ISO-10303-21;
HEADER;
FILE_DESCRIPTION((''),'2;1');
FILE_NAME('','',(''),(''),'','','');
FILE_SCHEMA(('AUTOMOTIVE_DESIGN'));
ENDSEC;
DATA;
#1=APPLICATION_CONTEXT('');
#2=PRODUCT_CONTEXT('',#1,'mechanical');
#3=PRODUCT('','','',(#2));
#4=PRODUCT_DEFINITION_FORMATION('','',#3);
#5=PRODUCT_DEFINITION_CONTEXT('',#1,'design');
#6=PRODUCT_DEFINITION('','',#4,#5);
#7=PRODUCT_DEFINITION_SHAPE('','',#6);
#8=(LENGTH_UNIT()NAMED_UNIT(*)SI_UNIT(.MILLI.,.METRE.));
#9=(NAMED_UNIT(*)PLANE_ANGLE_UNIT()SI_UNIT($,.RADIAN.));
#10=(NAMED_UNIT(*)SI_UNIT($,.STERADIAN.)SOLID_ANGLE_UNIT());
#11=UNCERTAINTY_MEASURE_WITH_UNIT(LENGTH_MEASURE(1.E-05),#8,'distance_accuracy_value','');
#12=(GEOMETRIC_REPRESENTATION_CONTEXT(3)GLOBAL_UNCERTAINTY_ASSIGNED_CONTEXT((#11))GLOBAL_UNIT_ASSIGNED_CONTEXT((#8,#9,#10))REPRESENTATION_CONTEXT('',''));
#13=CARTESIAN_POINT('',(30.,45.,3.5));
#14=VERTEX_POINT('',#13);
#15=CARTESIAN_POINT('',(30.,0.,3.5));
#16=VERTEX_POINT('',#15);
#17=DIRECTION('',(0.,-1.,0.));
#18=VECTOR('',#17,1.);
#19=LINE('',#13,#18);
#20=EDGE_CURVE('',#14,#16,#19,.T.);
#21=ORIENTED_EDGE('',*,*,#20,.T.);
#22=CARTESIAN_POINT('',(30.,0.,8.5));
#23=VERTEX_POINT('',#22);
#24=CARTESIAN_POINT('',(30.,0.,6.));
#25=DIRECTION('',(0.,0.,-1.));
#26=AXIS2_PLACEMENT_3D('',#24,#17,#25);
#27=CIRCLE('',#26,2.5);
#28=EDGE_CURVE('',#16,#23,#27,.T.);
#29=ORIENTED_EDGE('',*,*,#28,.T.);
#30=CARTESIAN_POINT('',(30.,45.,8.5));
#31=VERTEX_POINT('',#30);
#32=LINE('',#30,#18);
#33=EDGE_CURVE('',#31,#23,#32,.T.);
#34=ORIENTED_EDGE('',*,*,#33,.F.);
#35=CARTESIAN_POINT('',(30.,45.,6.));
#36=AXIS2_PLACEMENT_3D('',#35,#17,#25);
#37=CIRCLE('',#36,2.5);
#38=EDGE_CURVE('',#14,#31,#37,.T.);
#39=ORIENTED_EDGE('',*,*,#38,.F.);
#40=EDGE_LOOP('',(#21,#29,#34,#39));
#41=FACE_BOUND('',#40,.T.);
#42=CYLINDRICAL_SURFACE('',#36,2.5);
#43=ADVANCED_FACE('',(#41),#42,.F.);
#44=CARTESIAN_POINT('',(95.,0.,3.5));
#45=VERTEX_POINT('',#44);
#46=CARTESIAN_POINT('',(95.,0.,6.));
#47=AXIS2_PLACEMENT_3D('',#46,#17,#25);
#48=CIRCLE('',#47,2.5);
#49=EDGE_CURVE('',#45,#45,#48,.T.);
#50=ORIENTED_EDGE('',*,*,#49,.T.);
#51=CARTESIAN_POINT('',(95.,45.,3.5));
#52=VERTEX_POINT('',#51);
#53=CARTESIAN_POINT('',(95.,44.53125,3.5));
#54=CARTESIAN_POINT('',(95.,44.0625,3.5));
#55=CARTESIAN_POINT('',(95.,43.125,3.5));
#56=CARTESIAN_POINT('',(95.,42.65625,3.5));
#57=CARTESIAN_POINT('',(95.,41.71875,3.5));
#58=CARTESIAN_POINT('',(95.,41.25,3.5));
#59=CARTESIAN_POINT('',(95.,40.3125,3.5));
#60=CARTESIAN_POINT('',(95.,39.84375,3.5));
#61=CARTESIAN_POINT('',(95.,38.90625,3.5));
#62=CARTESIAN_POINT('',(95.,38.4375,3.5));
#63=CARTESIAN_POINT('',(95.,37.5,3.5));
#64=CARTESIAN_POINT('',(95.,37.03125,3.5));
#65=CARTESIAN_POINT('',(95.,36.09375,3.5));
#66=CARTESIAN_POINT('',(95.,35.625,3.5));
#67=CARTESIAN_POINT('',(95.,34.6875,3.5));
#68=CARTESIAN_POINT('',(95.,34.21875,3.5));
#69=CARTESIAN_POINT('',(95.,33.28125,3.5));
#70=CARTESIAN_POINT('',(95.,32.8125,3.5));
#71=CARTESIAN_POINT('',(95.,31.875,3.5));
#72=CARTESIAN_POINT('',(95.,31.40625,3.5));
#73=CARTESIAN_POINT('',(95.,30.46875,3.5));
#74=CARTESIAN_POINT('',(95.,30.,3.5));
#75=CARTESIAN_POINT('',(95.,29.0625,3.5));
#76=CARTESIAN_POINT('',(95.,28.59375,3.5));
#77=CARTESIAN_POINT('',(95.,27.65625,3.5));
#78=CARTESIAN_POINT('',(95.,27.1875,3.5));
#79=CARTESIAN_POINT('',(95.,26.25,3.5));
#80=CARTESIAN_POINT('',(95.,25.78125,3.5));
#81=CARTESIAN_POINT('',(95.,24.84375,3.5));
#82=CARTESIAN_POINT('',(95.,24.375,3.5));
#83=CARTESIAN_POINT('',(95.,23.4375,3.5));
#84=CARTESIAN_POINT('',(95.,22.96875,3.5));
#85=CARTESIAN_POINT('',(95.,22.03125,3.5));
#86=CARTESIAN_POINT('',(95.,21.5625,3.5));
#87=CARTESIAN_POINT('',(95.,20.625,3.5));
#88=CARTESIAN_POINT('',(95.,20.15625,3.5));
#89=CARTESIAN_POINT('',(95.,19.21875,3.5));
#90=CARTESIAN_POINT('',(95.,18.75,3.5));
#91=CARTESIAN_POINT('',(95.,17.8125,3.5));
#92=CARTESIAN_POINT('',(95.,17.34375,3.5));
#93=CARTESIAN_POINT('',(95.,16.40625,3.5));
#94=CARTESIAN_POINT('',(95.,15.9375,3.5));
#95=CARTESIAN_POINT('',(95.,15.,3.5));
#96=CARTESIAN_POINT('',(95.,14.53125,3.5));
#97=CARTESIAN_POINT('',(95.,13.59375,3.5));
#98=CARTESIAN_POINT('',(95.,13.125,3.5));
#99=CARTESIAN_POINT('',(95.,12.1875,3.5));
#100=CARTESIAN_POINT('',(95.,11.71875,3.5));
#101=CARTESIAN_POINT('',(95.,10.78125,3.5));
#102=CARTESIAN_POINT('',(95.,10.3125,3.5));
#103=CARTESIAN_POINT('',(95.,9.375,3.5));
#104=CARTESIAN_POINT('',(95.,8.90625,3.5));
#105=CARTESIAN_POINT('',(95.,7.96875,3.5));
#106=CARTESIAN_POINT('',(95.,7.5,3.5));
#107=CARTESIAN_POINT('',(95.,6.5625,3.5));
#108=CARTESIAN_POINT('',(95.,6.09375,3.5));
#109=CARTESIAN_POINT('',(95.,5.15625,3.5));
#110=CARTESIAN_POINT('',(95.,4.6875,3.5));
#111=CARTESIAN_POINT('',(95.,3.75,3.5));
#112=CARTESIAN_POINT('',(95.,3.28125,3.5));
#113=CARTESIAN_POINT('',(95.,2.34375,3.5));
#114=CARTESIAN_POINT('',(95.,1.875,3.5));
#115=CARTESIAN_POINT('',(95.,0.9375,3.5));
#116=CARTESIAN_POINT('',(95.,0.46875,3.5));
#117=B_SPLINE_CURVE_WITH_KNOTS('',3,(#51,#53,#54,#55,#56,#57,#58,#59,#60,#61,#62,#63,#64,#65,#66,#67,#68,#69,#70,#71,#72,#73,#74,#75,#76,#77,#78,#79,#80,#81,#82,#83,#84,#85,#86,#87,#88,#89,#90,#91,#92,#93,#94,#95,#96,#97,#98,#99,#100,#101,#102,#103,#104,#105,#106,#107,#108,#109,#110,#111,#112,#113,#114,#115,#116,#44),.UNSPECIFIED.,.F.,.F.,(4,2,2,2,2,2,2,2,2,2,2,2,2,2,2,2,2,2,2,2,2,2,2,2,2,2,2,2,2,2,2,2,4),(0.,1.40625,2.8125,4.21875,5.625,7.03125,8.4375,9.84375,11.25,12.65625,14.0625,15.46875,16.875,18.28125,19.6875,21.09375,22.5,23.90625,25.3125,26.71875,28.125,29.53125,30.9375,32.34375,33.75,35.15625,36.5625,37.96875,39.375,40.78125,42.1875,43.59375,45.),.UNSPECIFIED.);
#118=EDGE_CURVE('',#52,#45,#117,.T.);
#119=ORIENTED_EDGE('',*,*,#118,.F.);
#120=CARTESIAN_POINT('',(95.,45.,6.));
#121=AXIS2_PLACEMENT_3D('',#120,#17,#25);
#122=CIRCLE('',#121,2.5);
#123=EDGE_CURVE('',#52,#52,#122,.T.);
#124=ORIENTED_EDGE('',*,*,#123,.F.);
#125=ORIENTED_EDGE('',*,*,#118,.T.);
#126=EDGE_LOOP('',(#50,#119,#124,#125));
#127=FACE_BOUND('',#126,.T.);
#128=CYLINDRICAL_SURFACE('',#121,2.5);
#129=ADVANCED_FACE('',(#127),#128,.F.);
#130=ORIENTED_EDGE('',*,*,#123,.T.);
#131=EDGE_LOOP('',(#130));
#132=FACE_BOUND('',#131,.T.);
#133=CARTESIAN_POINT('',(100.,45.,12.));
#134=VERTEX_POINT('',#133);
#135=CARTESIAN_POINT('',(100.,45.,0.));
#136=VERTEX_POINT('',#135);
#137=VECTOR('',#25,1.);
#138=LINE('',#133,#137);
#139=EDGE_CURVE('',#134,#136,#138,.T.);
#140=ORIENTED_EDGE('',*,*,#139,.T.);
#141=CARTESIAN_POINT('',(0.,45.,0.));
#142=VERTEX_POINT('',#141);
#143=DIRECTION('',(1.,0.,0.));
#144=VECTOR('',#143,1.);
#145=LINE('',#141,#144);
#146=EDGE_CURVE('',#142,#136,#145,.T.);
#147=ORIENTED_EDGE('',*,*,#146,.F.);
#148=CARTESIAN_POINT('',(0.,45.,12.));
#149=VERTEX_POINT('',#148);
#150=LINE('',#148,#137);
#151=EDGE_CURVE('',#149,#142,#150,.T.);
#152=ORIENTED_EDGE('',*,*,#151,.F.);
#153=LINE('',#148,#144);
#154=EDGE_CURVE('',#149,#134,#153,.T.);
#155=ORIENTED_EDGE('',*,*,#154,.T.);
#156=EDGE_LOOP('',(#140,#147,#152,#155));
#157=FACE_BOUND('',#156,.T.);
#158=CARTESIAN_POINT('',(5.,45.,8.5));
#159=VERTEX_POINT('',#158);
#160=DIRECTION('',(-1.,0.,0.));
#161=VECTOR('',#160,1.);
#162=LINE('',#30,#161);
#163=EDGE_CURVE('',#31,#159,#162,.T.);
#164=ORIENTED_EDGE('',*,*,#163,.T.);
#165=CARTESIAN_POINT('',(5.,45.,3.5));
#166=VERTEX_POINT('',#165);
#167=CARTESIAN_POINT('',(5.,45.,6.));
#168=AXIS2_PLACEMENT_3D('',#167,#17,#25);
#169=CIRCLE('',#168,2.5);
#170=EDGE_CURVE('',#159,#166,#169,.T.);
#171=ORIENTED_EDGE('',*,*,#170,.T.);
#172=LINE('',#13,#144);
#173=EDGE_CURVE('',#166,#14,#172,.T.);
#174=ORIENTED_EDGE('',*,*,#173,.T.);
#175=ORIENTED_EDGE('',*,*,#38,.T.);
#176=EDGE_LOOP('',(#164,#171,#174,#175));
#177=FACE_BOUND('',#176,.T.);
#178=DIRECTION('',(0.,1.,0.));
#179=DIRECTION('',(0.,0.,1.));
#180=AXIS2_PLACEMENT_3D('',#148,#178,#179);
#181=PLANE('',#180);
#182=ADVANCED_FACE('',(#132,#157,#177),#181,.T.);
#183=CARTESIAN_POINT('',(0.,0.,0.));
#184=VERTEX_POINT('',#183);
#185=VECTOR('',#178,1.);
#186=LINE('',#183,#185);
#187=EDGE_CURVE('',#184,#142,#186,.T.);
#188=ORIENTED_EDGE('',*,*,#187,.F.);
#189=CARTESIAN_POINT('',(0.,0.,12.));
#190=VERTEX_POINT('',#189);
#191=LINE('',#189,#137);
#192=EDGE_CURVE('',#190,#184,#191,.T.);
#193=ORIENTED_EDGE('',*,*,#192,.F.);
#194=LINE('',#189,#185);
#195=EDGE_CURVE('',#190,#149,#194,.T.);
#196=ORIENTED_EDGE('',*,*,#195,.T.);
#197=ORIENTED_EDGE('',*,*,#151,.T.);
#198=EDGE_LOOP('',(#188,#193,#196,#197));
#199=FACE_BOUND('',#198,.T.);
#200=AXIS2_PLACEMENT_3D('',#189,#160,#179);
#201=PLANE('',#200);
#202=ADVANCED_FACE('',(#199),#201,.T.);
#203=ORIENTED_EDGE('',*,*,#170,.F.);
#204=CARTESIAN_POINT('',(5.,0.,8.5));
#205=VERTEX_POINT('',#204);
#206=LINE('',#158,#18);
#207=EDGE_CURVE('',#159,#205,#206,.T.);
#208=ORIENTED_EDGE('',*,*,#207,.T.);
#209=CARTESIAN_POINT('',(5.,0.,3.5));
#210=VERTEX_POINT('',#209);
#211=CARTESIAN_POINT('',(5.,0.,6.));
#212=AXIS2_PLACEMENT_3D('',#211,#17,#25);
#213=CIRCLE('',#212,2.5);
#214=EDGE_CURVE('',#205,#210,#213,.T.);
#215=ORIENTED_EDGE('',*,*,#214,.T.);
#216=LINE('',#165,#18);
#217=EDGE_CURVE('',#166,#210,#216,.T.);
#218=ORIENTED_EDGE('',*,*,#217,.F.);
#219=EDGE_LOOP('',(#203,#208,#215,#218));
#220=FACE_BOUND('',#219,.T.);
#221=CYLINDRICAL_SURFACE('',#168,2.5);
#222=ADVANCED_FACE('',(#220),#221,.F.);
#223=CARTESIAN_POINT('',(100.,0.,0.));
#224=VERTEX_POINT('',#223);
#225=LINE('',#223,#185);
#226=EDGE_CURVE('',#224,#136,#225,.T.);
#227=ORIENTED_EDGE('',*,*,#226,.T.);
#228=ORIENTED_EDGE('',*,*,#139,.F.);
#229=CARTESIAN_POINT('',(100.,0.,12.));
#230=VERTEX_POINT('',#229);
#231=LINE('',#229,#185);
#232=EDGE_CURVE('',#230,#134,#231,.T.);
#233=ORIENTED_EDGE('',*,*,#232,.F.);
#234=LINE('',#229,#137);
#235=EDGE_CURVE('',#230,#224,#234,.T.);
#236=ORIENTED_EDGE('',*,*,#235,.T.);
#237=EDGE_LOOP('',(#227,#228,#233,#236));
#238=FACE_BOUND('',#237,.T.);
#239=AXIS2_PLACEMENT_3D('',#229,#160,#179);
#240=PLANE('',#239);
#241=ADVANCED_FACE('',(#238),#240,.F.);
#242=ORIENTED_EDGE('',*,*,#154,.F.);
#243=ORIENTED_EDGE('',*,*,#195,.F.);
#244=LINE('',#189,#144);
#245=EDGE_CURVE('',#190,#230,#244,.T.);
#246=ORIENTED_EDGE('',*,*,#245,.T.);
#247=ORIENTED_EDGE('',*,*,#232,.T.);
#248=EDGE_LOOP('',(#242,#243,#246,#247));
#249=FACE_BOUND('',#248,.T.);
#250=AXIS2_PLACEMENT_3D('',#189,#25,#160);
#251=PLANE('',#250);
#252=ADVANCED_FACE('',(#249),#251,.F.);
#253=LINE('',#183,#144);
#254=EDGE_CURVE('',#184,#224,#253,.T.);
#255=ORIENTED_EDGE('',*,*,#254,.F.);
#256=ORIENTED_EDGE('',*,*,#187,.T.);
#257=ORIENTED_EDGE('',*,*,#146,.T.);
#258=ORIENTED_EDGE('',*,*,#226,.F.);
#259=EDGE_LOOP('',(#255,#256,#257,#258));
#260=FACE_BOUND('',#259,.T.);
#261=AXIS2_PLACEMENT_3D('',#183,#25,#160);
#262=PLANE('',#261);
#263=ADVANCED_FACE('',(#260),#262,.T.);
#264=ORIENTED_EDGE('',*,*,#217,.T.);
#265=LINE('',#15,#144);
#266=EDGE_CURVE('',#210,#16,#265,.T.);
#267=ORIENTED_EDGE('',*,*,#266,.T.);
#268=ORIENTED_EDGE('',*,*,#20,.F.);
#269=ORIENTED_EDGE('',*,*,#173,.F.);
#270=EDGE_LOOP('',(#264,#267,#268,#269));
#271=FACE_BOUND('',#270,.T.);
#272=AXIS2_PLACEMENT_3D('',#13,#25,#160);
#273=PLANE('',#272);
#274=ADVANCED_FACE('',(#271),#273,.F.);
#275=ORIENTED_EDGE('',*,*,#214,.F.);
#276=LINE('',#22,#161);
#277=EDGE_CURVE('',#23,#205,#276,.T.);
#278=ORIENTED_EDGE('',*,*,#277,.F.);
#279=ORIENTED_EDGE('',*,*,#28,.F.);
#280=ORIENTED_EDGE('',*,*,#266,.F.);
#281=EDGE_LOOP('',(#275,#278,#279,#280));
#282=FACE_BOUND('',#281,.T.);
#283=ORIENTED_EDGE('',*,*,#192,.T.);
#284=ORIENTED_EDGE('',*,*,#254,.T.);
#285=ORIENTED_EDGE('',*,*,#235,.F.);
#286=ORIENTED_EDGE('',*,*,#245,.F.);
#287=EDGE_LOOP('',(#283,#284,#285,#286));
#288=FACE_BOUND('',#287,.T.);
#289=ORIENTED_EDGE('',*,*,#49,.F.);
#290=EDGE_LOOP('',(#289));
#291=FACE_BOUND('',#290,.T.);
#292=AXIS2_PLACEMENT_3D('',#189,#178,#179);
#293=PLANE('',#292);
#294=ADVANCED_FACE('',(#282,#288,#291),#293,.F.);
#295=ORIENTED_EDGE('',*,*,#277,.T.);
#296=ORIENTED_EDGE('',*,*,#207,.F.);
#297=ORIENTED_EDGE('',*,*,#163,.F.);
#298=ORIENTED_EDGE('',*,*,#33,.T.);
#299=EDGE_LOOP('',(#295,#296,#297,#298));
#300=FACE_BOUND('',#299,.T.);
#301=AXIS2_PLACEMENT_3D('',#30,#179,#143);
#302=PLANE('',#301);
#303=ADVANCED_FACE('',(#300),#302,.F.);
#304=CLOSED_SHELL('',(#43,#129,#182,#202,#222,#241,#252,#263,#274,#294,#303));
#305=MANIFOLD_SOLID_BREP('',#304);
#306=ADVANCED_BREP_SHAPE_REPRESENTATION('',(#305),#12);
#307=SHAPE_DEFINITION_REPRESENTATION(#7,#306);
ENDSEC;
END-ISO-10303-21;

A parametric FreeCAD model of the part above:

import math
import FreeCAD as App
import Part
import Sketcher
Q = App.Units.Quantity


def add_polygon(sketch, points):
    """Adds a closed chain of lines whose ends are joined by coincident constraints."""
    first, n = sketch.GeometryCount, len(points)
    for a, b in zip(points, points[1:] + points[:1]):
        sketch.addGeometry(Part.LineSegment(App.Vector(*a, 0), App.Vector(*b, 0)), False)
    for i in range(n):
        sketch.addConstraint(Sketcher.Constraint("Coincident", first + i, 2, first + (i + 1) % n, 1))

doc = App.newDocument("Part")
params = doc.addObject("Spreadsheet::Sheet", "Params")
for row, (alias, value) in enumerate([
    ("sketch1_width", "100 mm"),
    ("sketch1_height", "45 mm"),
    ("pad1_length", "12 mm"),
    ("sketch2_diameter", "5 mm"),
    ("sketch2_width", "25 mm"),
], start=1):
    params.set(f"A{row}", alias)
    params.set(f"B{row}", "=" + value)
    params.setAlias(f"B{row}", alias)

body = doc.addObject("PartDesign::Body", "Body")

# Sketch on XY plane
sketch1 = body.newObject("Sketcher::SketchObject", "Sketch")
sketch1.AttachmentSupport = (doc.getObject("XY_Plane"), [""])
sketch1.MapMode = "FlatFace"
add_polygon(sketch1, [(0, 45), (0, 0), (100, 0), (100, 45)])  # lines 0-3
sketch1.addConstraint([
    Sketcher.Constraint("Vertical", 0),
    Sketcher.Constraint("Horizontal", 1),
    Sketcher.Constraint("Vertical", 2),
    Sketcher.Constraint("Horizontal", 3),
    Sketcher.Constraint("Coincident", 0, 2, -1, 1),
    Sketcher.Constraint("DistanceX", 1, 1, 1, 2, Q("100 mm")),
    Sketcher.Constraint("DistanceY", 0, 2, 0, 1, Q("45 mm")),
])
sketch1.setExpression("Constraints[9]", "Params.sketch1_width")
sketch1.setExpression("Constraints[10]", "Params.sketch1_height")
pad1 = body.newObject("PartDesign::Pad", "Pad")
pad1.Profile = sketch1
pad1.setExpression("Length", "Params.pad1_length")

# Sketch on XZ plane
sketch2 = body.newObject("Sketcher::SketchObject", "Sketch001")
sketch2.AttachmentSupport = (doc.getObject("XZ_Plane"), [""])
sketch2.MapMode = "FlatFace"
sketch2.addGeometry([
    Part.Circle(App.Vector(95, 6, 0), App.Vector(0, 0, 1), 2.5),  # 0
    Part.LineSegment(App.Vector(5, 3.5, 0), App.Vector(30, 3.5, 0)),  # 1
    Part.ArcOfCircle(Part.Circle(App.Vector(30, 6, 0), App.Vector(0, 0, 1), 2.5), math.radians(-90), math.radians(90)),  # 2
    Part.LineSegment(App.Vector(30, 8.5, 0), App.Vector(5, 8.5, 0)),  # 3
    Part.ArcOfCircle(Part.Circle(App.Vector(5, 6, 0), App.Vector(0, 0, 1), 2.5), math.radians(90), math.radians(270)),  # 4
], False)
sketch2.addConstraint([
    Sketcher.Constraint("Tangent", 1, 2, 2, 1),
    Sketcher.Constraint("Tangent", 2, 2, 3, 1),
    Sketcher.Constraint("Tangent", 3, 2, 4, 1),
    Sketcher.Constraint("Tangent", 4, 2, 1, 1),
    Sketcher.Constraint("Horizontal", 1),
    Sketcher.Constraint("Horizontal", 3),
    Sketcher.Constraint("Equal", 0, 2),
    Sketcher.Constraint("Horizontal", 0, 3, 2, 3),
    Sketcher.Constraint("Diameter", 0, Q("5 mm")),
    Sketcher.Constraint("DistanceX", 1, 1, 1, 2, Q("25 mm")),
    Sketcher.Constraint("DistanceX", -1, 1, 0, 3, Q("95 mm")),
    Sketcher.Constraint("DistanceY", -1, 1, 0, 3, Q("6 mm")),
    Sketcher.Constraint("DistanceX", -1, 1, 2, 3, Q("30 mm")),
])
sketch2.setExpression("Constraints[8]", "Params.sketch2_diameter")
sketch2.setExpression("Constraints[9]", "Params.sketch2_width")
pocket1 = body.newObject("PartDesign::Pocket", "Pocket")
pocket1.Profile = sketch2
pocket1.Type = "ThroughAll"

doc.recompute()
